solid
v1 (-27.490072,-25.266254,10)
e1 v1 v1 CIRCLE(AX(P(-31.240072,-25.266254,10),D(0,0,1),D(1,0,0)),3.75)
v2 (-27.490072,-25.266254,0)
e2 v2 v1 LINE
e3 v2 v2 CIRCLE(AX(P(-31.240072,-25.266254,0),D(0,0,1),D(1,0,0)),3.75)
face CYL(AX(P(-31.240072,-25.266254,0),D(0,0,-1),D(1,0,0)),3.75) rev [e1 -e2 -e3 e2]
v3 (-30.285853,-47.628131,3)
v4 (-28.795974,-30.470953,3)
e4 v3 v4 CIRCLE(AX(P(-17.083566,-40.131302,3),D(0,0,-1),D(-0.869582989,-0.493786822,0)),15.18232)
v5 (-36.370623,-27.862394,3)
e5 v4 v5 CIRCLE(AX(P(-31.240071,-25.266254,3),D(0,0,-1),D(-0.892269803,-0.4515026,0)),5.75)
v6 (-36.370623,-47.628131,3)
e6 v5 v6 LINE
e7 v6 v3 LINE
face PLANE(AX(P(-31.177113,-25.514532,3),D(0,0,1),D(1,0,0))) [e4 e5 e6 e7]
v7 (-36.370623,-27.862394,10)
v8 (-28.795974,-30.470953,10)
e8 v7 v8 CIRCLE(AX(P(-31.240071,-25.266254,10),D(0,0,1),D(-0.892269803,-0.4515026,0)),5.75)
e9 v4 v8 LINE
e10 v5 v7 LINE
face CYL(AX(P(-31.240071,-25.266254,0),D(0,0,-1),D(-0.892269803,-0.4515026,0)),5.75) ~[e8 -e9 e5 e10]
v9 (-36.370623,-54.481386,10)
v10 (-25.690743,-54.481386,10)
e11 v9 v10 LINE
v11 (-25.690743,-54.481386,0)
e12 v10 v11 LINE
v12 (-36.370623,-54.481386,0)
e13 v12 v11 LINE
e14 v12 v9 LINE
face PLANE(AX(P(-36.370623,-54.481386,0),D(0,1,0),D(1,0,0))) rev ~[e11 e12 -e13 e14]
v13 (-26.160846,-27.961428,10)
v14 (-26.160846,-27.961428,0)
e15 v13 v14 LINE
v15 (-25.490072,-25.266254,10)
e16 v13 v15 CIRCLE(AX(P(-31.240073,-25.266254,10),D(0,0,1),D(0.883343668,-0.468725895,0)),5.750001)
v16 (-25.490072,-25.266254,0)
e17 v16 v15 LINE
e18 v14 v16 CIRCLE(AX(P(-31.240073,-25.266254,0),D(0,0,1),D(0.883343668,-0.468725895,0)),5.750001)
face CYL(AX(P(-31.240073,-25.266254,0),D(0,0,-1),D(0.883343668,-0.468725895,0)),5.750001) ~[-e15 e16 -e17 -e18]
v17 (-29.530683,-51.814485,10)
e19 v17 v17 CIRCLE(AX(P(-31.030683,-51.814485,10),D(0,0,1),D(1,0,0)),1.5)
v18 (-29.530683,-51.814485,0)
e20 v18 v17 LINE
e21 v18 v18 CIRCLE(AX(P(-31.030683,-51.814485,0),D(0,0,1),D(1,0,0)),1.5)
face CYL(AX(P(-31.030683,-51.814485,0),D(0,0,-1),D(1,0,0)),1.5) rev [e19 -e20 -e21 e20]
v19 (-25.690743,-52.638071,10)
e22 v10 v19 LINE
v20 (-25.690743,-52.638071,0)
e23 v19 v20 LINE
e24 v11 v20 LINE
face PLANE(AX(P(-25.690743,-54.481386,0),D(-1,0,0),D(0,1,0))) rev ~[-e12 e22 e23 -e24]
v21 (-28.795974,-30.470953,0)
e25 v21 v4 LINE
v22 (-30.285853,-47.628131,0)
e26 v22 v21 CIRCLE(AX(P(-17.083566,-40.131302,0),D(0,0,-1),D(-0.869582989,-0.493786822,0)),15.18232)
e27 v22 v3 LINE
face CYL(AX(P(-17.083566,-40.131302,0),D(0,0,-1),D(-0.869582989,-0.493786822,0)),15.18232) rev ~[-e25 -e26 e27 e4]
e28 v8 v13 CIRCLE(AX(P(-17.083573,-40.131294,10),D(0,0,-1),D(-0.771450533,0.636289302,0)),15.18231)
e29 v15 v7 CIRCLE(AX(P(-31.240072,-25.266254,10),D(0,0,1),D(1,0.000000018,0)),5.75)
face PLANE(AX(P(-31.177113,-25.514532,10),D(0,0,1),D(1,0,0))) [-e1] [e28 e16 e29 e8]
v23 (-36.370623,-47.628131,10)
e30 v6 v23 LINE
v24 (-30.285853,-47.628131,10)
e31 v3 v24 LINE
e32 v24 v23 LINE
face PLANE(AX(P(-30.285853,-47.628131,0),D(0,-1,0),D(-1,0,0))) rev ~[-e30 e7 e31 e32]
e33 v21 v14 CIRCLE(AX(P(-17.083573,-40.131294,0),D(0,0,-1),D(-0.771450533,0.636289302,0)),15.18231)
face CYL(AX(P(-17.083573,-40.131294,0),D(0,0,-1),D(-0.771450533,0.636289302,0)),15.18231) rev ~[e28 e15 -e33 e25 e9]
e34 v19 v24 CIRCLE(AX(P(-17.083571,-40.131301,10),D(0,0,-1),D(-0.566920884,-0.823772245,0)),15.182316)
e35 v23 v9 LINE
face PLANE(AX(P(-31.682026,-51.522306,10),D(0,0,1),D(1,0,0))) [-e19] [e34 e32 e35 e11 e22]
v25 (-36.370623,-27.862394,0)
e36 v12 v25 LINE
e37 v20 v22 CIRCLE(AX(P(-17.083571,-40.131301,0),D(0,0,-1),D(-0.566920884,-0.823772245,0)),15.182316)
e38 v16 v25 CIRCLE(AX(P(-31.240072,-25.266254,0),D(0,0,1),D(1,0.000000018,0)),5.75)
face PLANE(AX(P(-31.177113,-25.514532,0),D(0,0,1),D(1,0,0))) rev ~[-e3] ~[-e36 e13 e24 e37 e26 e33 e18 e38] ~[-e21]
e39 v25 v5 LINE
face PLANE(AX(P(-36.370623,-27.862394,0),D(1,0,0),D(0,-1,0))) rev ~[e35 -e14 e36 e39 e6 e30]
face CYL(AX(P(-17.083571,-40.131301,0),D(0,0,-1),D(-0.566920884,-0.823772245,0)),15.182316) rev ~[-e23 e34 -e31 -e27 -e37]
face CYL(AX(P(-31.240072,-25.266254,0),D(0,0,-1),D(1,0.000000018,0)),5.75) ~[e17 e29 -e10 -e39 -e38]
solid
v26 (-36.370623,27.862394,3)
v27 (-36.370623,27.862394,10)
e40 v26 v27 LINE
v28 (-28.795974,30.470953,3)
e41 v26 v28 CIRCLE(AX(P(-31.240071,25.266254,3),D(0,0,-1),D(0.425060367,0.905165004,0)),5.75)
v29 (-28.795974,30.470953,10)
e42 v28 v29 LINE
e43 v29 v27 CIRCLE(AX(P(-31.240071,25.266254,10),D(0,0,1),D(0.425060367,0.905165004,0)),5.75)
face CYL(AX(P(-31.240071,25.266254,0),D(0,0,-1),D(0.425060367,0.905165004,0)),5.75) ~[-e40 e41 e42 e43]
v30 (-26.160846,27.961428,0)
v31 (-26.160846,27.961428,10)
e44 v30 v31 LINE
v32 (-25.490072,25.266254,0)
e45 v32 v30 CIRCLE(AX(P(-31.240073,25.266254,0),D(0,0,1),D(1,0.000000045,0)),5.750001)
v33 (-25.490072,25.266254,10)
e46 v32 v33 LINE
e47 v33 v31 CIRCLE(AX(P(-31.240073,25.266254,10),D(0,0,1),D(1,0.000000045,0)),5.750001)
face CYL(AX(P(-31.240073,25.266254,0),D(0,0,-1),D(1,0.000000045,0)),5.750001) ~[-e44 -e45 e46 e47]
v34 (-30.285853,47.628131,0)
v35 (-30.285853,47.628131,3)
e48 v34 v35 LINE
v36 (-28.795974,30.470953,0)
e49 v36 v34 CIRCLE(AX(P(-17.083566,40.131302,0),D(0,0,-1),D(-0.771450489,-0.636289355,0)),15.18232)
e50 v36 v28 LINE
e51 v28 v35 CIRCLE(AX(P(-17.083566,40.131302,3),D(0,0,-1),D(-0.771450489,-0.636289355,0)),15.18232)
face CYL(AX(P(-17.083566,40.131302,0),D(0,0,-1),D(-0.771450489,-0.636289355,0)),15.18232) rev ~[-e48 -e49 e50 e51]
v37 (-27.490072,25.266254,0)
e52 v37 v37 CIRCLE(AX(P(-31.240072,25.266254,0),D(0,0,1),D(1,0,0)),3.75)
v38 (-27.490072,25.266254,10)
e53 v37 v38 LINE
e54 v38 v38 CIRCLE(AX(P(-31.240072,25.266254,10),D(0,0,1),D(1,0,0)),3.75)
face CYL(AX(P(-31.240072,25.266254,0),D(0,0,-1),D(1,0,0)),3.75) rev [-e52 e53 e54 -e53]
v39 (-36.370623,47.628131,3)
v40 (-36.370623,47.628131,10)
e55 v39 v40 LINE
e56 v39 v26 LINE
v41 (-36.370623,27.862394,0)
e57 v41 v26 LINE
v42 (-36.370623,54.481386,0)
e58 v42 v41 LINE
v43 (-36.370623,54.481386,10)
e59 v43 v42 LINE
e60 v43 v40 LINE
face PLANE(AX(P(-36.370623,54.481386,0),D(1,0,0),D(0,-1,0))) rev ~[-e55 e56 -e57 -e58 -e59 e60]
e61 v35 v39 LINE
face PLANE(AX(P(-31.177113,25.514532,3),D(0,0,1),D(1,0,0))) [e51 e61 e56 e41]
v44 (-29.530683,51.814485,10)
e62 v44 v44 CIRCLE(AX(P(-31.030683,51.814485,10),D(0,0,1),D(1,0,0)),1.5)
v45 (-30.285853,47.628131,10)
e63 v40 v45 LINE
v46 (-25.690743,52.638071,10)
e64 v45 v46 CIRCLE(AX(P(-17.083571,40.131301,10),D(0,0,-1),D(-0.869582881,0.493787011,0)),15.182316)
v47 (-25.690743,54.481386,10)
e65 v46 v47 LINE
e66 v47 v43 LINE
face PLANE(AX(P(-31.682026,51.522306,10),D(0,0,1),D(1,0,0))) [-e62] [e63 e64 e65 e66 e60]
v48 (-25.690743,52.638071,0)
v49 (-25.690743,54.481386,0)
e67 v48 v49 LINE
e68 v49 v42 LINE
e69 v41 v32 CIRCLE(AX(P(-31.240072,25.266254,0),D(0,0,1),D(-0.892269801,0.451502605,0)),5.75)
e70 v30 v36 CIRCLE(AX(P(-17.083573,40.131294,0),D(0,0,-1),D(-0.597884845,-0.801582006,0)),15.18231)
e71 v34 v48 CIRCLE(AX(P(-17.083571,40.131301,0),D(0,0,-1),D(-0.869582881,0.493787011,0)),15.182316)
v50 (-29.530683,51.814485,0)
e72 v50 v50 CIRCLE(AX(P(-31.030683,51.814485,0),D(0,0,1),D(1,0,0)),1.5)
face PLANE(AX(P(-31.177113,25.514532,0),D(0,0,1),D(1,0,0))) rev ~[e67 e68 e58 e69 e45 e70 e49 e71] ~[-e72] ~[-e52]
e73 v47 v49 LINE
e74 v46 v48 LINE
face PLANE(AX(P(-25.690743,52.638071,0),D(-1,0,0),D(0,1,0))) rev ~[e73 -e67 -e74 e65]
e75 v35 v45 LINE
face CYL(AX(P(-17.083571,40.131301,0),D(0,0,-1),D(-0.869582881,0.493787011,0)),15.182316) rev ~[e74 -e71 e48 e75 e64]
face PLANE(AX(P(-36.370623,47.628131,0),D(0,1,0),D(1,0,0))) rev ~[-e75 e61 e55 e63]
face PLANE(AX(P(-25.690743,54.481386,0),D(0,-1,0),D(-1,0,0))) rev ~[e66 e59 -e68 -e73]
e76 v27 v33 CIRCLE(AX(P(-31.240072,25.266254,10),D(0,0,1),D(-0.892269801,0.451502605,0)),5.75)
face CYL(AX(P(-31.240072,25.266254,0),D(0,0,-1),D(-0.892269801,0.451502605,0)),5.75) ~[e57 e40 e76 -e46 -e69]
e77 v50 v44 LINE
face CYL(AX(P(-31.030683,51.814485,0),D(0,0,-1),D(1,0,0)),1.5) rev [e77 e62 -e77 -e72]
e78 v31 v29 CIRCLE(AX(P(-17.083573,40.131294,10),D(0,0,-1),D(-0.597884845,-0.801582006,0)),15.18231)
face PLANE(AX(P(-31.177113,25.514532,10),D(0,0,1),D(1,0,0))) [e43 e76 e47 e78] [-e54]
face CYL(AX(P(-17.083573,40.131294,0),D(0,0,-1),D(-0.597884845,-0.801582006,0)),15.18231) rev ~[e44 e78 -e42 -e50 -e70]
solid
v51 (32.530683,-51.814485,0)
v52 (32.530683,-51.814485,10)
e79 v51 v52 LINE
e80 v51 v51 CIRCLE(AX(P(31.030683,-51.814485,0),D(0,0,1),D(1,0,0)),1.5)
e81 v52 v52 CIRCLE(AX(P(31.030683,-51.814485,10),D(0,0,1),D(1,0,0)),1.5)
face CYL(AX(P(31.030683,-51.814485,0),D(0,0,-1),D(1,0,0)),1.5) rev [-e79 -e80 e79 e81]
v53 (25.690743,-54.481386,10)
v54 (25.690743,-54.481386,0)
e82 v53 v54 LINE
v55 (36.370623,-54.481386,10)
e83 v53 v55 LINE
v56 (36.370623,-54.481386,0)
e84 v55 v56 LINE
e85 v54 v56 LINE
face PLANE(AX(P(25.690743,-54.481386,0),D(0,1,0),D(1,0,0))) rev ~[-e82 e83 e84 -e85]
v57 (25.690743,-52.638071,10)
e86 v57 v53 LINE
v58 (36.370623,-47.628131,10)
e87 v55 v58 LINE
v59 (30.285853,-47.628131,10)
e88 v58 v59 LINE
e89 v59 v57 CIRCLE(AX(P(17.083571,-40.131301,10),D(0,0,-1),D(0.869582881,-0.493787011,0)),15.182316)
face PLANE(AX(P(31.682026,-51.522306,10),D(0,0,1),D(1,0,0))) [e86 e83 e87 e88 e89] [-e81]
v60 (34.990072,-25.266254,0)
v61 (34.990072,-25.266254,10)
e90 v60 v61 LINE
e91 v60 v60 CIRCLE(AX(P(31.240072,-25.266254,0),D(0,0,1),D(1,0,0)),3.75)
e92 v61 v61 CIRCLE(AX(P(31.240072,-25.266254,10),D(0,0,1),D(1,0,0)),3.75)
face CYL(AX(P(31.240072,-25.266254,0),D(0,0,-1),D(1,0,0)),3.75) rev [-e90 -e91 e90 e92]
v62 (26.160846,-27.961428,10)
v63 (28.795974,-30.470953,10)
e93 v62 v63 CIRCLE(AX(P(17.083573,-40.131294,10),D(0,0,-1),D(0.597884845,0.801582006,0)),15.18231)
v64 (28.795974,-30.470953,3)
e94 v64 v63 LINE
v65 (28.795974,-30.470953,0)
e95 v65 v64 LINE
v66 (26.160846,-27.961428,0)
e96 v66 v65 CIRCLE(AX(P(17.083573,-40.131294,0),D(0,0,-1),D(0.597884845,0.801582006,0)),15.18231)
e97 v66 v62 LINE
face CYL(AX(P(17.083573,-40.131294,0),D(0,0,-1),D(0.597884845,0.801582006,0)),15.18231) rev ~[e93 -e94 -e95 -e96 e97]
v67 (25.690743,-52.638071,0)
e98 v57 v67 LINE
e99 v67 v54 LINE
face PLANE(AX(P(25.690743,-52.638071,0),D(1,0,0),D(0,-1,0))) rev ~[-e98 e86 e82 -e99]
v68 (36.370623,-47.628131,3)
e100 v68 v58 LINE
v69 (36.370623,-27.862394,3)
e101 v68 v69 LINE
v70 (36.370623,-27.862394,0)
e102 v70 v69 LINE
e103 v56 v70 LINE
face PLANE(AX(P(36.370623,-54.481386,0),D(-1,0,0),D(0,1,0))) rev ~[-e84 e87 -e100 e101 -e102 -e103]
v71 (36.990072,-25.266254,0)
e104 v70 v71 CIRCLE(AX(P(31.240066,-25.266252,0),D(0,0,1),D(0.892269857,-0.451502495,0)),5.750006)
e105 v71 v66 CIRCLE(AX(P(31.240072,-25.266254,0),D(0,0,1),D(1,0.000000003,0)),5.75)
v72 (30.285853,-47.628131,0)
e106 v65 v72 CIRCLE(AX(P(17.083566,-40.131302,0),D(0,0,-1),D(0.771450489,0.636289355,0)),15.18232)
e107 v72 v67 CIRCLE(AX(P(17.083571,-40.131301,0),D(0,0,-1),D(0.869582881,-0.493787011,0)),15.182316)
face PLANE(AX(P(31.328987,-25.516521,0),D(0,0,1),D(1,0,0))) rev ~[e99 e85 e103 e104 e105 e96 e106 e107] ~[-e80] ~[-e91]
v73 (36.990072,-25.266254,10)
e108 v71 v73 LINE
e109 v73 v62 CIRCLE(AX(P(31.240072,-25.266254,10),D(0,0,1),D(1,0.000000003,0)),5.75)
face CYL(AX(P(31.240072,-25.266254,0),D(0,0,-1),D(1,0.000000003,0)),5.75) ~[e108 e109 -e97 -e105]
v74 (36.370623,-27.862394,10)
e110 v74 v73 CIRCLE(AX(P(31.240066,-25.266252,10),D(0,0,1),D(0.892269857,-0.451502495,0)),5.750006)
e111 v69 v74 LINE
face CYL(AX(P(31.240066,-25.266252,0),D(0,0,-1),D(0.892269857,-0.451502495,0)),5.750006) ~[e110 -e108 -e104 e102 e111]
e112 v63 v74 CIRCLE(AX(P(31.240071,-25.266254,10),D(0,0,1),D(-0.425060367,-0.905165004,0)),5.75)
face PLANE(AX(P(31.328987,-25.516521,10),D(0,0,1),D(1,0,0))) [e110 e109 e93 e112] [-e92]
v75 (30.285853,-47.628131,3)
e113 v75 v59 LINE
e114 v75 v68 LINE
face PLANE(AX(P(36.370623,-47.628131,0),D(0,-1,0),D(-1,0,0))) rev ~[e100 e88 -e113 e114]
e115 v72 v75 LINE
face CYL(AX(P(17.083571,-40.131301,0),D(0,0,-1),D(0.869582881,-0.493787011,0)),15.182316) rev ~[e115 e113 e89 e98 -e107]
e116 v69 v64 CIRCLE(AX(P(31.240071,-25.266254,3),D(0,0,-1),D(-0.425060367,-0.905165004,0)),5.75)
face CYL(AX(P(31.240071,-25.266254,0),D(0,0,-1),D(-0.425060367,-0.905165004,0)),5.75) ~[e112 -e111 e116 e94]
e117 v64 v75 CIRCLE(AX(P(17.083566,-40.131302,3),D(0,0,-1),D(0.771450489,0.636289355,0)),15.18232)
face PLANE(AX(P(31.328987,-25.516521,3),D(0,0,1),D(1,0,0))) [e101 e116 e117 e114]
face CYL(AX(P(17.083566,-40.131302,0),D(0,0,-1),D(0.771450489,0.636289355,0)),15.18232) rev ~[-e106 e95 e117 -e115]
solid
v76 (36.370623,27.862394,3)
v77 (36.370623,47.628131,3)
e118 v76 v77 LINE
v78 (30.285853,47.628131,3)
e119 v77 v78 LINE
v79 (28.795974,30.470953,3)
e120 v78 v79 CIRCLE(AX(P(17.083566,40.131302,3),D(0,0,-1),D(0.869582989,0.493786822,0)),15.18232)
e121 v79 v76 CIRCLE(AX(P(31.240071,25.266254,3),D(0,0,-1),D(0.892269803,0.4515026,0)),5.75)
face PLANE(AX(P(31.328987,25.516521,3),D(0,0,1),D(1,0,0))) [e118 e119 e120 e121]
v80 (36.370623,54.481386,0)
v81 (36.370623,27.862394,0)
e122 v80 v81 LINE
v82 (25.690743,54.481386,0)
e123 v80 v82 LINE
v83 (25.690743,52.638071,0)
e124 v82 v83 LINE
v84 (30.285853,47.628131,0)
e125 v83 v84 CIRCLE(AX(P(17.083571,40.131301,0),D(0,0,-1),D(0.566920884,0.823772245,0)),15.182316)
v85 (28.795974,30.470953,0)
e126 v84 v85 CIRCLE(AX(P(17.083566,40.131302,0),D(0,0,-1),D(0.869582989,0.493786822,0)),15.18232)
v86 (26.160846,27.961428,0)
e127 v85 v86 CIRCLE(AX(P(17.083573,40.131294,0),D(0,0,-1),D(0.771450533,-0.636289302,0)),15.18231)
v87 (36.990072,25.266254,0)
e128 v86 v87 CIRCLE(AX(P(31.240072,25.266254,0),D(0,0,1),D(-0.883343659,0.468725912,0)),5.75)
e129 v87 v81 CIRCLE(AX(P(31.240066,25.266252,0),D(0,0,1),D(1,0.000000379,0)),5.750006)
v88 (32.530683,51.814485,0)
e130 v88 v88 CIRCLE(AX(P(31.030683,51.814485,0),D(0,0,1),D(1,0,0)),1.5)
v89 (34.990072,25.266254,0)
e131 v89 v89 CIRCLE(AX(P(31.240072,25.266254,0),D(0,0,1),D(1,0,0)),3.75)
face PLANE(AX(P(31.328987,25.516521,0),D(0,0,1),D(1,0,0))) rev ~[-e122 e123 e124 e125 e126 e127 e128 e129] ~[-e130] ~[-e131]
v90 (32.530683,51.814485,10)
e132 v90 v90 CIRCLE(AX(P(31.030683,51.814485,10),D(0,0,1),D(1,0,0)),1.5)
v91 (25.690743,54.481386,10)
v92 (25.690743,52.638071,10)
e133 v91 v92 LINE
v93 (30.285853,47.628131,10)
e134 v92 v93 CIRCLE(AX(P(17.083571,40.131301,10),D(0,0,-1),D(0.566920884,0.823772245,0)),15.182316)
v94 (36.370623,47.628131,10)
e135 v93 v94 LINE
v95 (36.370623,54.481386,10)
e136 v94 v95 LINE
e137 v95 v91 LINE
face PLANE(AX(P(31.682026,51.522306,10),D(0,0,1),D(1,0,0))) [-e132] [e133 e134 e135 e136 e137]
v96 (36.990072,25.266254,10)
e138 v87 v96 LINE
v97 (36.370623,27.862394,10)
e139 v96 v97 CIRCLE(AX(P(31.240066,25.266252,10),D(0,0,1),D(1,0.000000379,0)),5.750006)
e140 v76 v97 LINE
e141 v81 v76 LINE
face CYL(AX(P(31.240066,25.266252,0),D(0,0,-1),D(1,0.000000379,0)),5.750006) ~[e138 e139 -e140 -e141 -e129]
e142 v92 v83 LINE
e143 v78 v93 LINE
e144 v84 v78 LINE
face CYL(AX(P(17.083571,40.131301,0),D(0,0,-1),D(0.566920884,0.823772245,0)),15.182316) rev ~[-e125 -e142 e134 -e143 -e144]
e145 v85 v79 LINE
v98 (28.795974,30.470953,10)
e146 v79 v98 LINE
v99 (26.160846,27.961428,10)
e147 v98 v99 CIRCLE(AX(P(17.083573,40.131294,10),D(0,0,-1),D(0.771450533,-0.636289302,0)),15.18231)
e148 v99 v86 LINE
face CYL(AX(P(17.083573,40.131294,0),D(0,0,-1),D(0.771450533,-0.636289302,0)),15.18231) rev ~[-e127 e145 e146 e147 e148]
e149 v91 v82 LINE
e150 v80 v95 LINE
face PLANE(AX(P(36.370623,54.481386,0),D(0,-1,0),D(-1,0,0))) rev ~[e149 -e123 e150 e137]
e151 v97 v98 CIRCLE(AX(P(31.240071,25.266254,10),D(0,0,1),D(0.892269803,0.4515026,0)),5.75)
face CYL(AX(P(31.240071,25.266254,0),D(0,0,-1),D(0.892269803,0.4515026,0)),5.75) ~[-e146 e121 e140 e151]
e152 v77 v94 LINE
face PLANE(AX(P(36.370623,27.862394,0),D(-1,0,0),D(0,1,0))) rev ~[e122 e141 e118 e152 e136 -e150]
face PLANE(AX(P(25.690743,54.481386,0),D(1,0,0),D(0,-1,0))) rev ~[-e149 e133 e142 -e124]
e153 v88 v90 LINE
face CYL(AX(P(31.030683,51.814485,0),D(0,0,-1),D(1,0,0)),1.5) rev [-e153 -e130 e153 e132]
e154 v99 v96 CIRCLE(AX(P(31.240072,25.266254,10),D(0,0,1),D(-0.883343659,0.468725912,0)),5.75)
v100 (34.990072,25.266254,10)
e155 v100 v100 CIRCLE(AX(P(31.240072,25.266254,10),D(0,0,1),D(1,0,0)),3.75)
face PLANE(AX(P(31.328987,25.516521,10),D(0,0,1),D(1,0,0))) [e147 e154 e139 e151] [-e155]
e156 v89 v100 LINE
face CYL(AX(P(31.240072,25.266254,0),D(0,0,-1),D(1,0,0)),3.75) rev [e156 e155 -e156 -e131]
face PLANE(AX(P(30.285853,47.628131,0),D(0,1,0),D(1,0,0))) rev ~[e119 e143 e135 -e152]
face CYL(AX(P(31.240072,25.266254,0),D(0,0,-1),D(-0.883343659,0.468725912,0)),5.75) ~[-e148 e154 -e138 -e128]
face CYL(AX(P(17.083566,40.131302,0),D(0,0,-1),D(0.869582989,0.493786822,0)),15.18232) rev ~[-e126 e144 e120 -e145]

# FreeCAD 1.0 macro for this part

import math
import FreeCAD as App
import Part
import Sketcher
Q = App.Units.Quantity

doc = App.newDocument("Part")
body = doc.addObject("PartDesign::Body", "Body")
body.AllowCompound = True

# Sketch on XY plane
sketch1 = doc.addObject("Sketcher::SketchObject", "Sketch")
body.addObject(sketch1)
sketch1.AttachmentSupport = (doc.XY_Plane, [""])
sketch1.MapMode = "FlatFace"
sketch1.addGeometry([
    Part.ArcOfCircle(Part.Circle(App.Vector(-31.2, 25.3, 0), App.Vector(0, 0, 1), 5.7), math.radians(153), math.radians(360)),  # 0
    Part.ArcOfCircle(Part.Circle(App.Vector(-31.2, 25.3, 0), App.Vector(0, 0, 1), 5.8), math.radians(0), math.radians(28)),  # 1
    Part.ArcOfCircle(Part.Circle(App.Vector(-17.1, 40.1, 0), App.Vector(0, 0, 1), 15.2), math.radians(-140.48), math.radians(-126.72)),  # 2
    Part.ArcOfCircle(Part.Circle(App.Vector(-17.1, 40.1, 0), App.Vector(0, 0, 1), 15.2), math.radians(150), math.radians(220)),  # 3
    Part.ArcOfCircle(Part.Circle(App.Vector(-17.1, 40.1, 0), App.Vector(0, 0, 1), 15.2), math.radians(125), math.radians(150)),  # 4
    Part.LineSegment(App.Vector(-25.7, 52.6, 0), App.Vector(-25.7, 54.5, 0)),  # 5
    Part.LineSegment(App.Vector(-25.7, 54.5, 0), App.Vector(-36.4, 54.5, 0)),  # 6
    Part.LineSegment(App.Vector(-36.4, 54.5, 0), App.Vector(-36.4, 27.9, 0)),  # 7
    Part.Circle(App.Vector(-31.2, 25.3, 0), App.Vector(0, 0, 1), 3.8),  # 8
    Part.Circle(App.Vector(-31, 51.8, 0), App.Vector(0, 0, 1), 1.5),  # 9
    Part.ArcOfCircle(Part.Circle(App.Vector(31.2, 25.3, 0), App.Vector(0, 0, 1), 5.7), math.radians(152), math.radians(360)),  # 10
    Part.ArcOfCircle(Part.Circle(App.Vector(31.2, 25.3, 0), App.Vector(0, 0, 1), 5.8), math.radians(0), math.radians(27)),  # 11
    Part.LineSegment(App.Vector(36.4, 27.9, 0), App.Vector(36.4, 54.5, 0)),  # 12
    Part.LineSegment(App.Vector(36.4, 54.5, 0), App.Vector(25.7, 54.5, 0)),  # 13
    Part.LineSegment(App.Vector(25.7, 54.5, 0), App.Vector(25.7, 52.6, 0)),  # 14
    Part.ArcOfCircle(Part.Circle(App.Vector(17.1, 40.1, 0), App.Vector(0, 0, 1), 15.2), math.radians(30), math.radians(55)),  # 15
    Part.ArcOfCircle(Part.Circle(App.Vector(17.1, 40.1, 0), App.Vector(0, 0, 1), 15.2), math.radians(-40), math.radians(30)),  # 16
    Part.ArcOfCircle(Part.Circle(App.Vector(17.1, 40.1, 0), App.Vector(0, 0, 1), 15.2), math.radians(-53.28), math.radians(-39.52)),  # 17
    Part.Circle(App.Vector(31.2, 25.3, 0), App.Vector(0, 0, 1), 3.8),  # 18
    Part.Circle(App.Vector(31, 51.8, 0), App.Vector(0, 0, 1), 1.5),  # 19
    Part.ArcOfCircle(Part.Circle(App.Vector(31.2, -25.3, 0), App.Vector(0, 0, 1), 5.8), math.radians(-27), math.radians(0)),  # 20
    Part.ArcOfCircle(Part.Circle(App.Vector(31.2, -25.3, 0), App.Vector(0, 0, 1), 5.7), math.radians(0), math.radians(208)),  # 21
    Part.ArcOfCircle(Part.Circle(App.Vector(17.1, -40.1, 0), App.Vector(0, 0, 1), 15.2), math.radians(39.52), math.radians(53.28)),  # 22
    Part.ArcOfCircle(Part.Circle(App.Vector(17.1, -40.1, 0), App.Vector(0, 0, 1), 15.2), math.radians(-30), math.radians(40)),  # 23
    Part.ArcOfCircle(Part.Circle(App.Vector(17.1, -40.1, 0), App.Vector(0, 0, 1), 15.2), math.radians(-55), math.radians(-30)),  # 24
    Part.LineSegment(App.Vector(25.7, -52.6, 0), App.Vector(25.7, -54.5, 0)),  # 25
    Part.LineSegment(App.Vector(25.7, -54.5, 0), App.Vector(36.4, -54.5, 0)),  # 26
    Part.LineSegment(App.Vector(36.4, -54.5, 0), App.Vector(36.4, -27.9, 0)),  # 27
    Part.Circle(App.Vector(31, -51.8, 0), App.Vector(0, 0, 1), 1.5),  # 28
    Part.Circle(App.Vector(31.2, -25.3, 0), App.Vector(0, 0, 1), 3.8),  # 29
    Part.ArcOfCircle(Part.Circle(App.Vector(-31.2, -25.3, 0), App.Vector(0, 0, 1), 5.8), math.radians(-28), math.radians(0)),  # 30
    Part.ArcOfCircle(Part.Circle(App.Vector(-31.2, -25.3, 0), App.Vector(0, 0, 1), 5.7), math.radians(0), math.radians(207)),  # 31
    Part.LineSegment(App.Vector(-36.4, -27.9, 0), App.Vector(-36.4, -54.5, 0)),  # 32
    Part.LineSegment(App.Vector(-36.4, -54.5, 0), App.Vector(-25.7, -54.5, 0)),  # 33
    Part.LineSegment(App.Vector(-25.7, -54.5, 0), App.Vector(-25.7, -52.6, 0)),  # 34
    Part.ArcOfCircle(Part.Circle(App.Vector(-17.1, -40.1, 0), App.Vector(0, 0, 1), 15.2), math.radians(-150), math.radians(-125)),  # 35
    Part.ArcOfCircle(Part.Circle(App.Vector(-17.1, -40.1, 0), App.Vector(0, 0, 1), 15.2), math.radians(140), math.radians(210)),  # 36
    Part.ArcOfCircle(Part.Circle(App.Vector(-17.1, -40.1, 0), App.Vector(0, 0, 1), 15.2), math.radians(126.72), math.radians(140.48)),  # 37
    Part.Circle(App.Vector(-31, -51.8, 0), App.Vector(0, 0, 1), 1.5),  # 38
    Part.Circle(App.Vector(-31.2, -25.3, 0), App.Vector(0, 0, 1), 3.8),  # 39
], False)
sketch1.addConstraint([
    Sketcher.Constraint("Tangent", 0, 2, 1, 1),
    Sketcher.Constraint("Coincident", 1, 2, 2, 2),
    Sketcher.Constraint("Tangent", 2, 1, 3, 2),
    Sketcher.Constraint("Tangent", 3, 1, 4, 2),
    Sketcher.Constraint("Coincident", 4, 1, 5, 1),
    Sketcher.Constraint("Coincident", 5, 2, 6, 1),
    Sketcher.Constraint("Coincident", 6, 2, 7, 1),
    Sketcher.Constraint("Coincident", 7, 2, 0, 1),
    Sketcher.Constraint("Tangent", 10, 2, 11, 1),
    Sketcher.Constraint("Coincident", 11, 2, 12, 1),
    Sketcher.Constraint("Coincident", 12, 2, 13, 1),
    Sketcher.Constraint("Coincident", 13, 2, 14, 1),
    Sketcher.Constraint("Coincident", 14, 2, 15, 2),
    Sketcher.Constraint("Tangent", 15, 1, 16, 2),
    Sketcher.Constraint("Tangent", 16, 1, 17, 2),
    Sketcher.Constraint("Coincident", 17, 1, 10, 1),
    Sketcher.Constraint("Tangent", 20, 2, 21, 1),
    Sketcher.Constraint("Coincident", 21, 2, 22, 2),
    Sketcher.Constraint("Tangent", 22, 1, 23, 2),
    Sketcher.Constraint("Tangent", 23, 1, 24, 2),
    Sketcher.Constraint("Coincident", 24, 1, 25, 1),
    Sketcher.Constraint("Coincident", 25, 2, 26, 1),
    Sketcher.Constraint("Coincident", 26, 2, 27, 1),
    Sketcher.Constraint("Coincident", 27, 2, 20, 1),
    Sketcher.Constraint("Tangent", 30, 2, 31, 1),
    Sketcher.Constraint("Coincident", 31, 2, 32, 1),
    Sketcher.Constraint("Coincident", 32, 2, 33, 1),
    Sketcher.Constraint("Coincident", 33, 2, 34, 1),
    Sketcher.Constraint("Coincident", 34, 2, 35, 2),
    Sketcher.Constraint("Tangent", 35, 1, 36, 2),
    Sketcher.Constraint("Tangent", 36, 1, 37, 2),
    Sketcher.Constraint("Coincident", 37, 1, 30, 1),
    Sketcher.Constraint("Vertical", 5),
    Sketcher.Constraint("Horizontal", 6),
    Sketcher.Constraint("Vertical", 7),
    Sketcher.Constraint("Vertical", 12),
    Sketcher.Constraint("Horizontal", 13),
    Sketcher.Constraint("Vertical", 14),
    Sketcher.Constraint("Vertical", 25),
    Sketcher.Constraint("Horizontal", 26),
    Sketcher.Constraint("Vertical", 27),
    Sketcher.Constraint("Vertical", 32),
    Sketcher.Constraint("Horizontal", 33),
    Sketcher.Constraint("Vertical", 34),
    Sketcher.Constraint("Coincident", 4, 3, 2, 3),
    Sketcher.Constraint("Coincident", 8, 3, 0, 3),
    Sketcher.Constraint("Coincident", 17, 3, 15, 3),
    Sketcher.Constraint("Coincident", 18, 3, 10, 3),
    Sketcher.Constraint("Coincident", 24, 3, 22, 3),
    Sketcher.Constraint("Coincident", 29, 3, 20, 3),
    Sketcher.Constraint("Coincident", 37, 3, 35, 3),
    Sketcher.Constraint("Coincident", 39, 3, 30, 3),
    Sketcher.Constraint("Equal", 0, 1),
    Sketcher.Constraint("Equal", 1, 10),
    Sketcher.Constraint("Equal", 4, 15),
    Sketcher.Constraint("Equal", 8, 18),
    Sketcher.Constraint("Equal", 9, 19),
    Sketcher.Constraint("Equal", 11, 20),
    Sketcher.Constraint("Equal", 10, 21),
    Sketcher.Constraint("Equal", 17, 22),
    Sketcher.Constraint("Equal", 19, 28),
    Sketcher.Constraint("Equal", 18, 29),
    Sketcher.Constraint("Equal", 21, 30),
    Sketcher.Constraint("Equal", 30, 31),
    Sketcher.Constraint("Equal", 24, 35),
    Sketcher.Constraint("Equal", 28, 38),
    Sketcher.Constraint("Equal", 29, 39),
    Sketcher.Constraint("Symmetric", 0, 3, 20, 3, -1, 1),
    Sketcher.Constraint("Symmetric", 2, 3, 22, 3, -1, 1),
    Sketcher.Constraint("Symmetric", 9, 3, 28, 3, -1, 1),
    Sketcher.Constraint("Symmetric", 10, 3, 30, 3, -1, 1),
    Sketcher.Constraint("Symmetric", 15, 3, 35, 3, -1, 1),
    Sketcher.Constraint("Symmetric", 19, 3, 38, 3, -1, 1),
    Sketcher.Constraint("Symmetric", 5, 2, 25, 2, -1, 1),
    Sketcher.Constraint("Symmetric", 7, 2, 27, 2, -1, 1),
    Sketcher.Constraint("Symmetric", 12, 2, 32, 2, -1, 1),
    Sketcher.Constraint("Symmetric", 0, 3, 10, 3, -2),
    Sketcher.Constraint("Symmetric", 2, 3, 15, 3, -2),
    Sketcher.Constraint("Symmetric", 9, 3, 19, 3, -2),
    Sketcher.Constraint("Symmetric", 6, 2, 12, 2, -2),
    Sketcher.Constraint("Horizontal", 18, 3, 0, 2),
    Sketcher.Constraint("Horizontal", 0, 2, 10, 2),
    Sketcher.Constraint("Horizontal", 4, 1, 14, 2),
    Sketcher.Constraint("Horizontal", 3, 1, 15, 1),
    Sketcher.Constraint("Horizontal", 2, 1, 16, 1),
    Sketcher.Constraint("Horizontal", 39, 3, 20, 2),
    Sketcher.Constraint("Horizontal", 20, 2, 30, 2),
    Sketcher.Constraint("Horizontal", 24, 1, 34, 2),
    Sketcher.Constraint("Horizontal", 23, 1, 35, 1),
    Sketcher.Constraint("Horizontal", 22, 1, 36, 1),
    Sketcher.Constraint("Vertical", 16, 1, 22, 1),
    Sketcher.Constraint("Vertical", 15, 1, 23, 1),
    Sketcher.Constraint("Diameter", 9, Q("3 mm")),
    Sketcher.Constraint("Diameter", 8, Q("7.5 mm")),
    Sketcher.Constraint("Radius", 0, Q("5.75 mm")),
    Sketcher.Constraint("Radius", 2, Q("15.18231 mm")),
    Sketcher.Constraint("DistanceX", 6, 2, 6, 1, Q("10.67988 mm")),
    Sketcher.Constraint("DistanceY", -1, 1, 3, 3, Q("40.131302 mm")),
    Sketcher.Constraint("DistanceX", 0, 3, 2, 3, Q("14.156499 mm")),
    Sketcher.Constraint("DistanceY", 0, 3, 2, 1, Q("5.204699 mm")),
    Sketcher.Constraint("DistanceX", 8, 3, 2, 1, Q("2.444098 mm")),
    Sketcher.Constraint("DistanceY", 9, 3, 5, 2, Q("2.666901 mm")),
    Sketcher.Constraint("DistanceY", 11, 2, 17, 3, Q("12.2689 mm")),
    Sketcher.Constraint("DistanceY", 5, 1, 5, 2, Q("1.843315 mm")),
    Sketcher.Constraint("DistanceX", 0, 3, -1, 1, Q("31.240072 mm")),
    Sketcher.Constraint("DistanceY", -1, 1, 3, 1, Q("47.628131 mm")),
    Sketcher.Constraint("DistanceX", 9, 3, 4, 3, Q("13.947112 mm")),
])
pad1 = doc.addObject("PartDesign::Pad", "Pad")
body.addObject(pad1)
pad1.Profile = sketch1
pad1.Length = 3

# Sketch on XY plane
sketch2 = doc.addObject("Sketcher::SketchObject", "Sketch001")
body.addObject(sketch2)
sketch2.AttachmentSupport = (doc.XY_Plane, [""])
sketch2.MapMode = "FlatFace"
sketch2.addGeometry([
    Part.ArcOfCircle(Part.Circle(App.Vector(-31.2, 25.3, 0), App.Vector(0, 0, 1), 5.7), math.radians(153), math.radians(360)),  # 0
    Part.ArcOfCircle(Part.Circle(App.Vector(-31.2, 25.3, 0), App.Vector(0, 0, 1), 5.8), math.radians(0), math.radians(28)),  # 1
    Part.ArcOfCircle(Part.Circle(App.Vector(-17.1, 40.1, 0), App.Vector(0, 0, 1), 15.2), math.radians(-140.48), math.radians(-126.72)),  # 2
    Part.ArcOfCircle(Part.Circle(App.Vector(-31.2, 25.3, 0), App.Vector(0, 0, 1), 5.8), math.radians(65), math.radians(153)),  # 3
    Part.Circle(App.Vector(-31.2, 25.3, 0), App.Vector(0, 0, 1), 3.8),  # 4
    Part.ArcOfCircle(Part.Circle(App.Vector(31.2, 25.3, 0), App.Vector(0, 0, 1), 5.7), math.radians(152), math.radians(360)),  # 5
    Part.ArcOfCircle(Part.Circle(App.Vector(31.2, 25.3, 0), App.Vector(0, 0, 1), 5.8), math.radians(0), math.radians(27)),  # 6
    Part.ArcOfCircle(Part.Circle(App.Vector(31.2, 25.3, 0), App.Vector(0, 0, 1), 5.8), math.radians(27), math.radians(115)),  # 7
    Part.ArcOfCircle(Part.Circle(App.Vector(17.1, 40.1, 0), App.Vector(0, 0, 1), 15.2), math.radians(-53.28), math.radians(-39.52)),  # 8
    Part.Circle(App.Vector(31.2, 25.3, 0), App.Vector(0, 0, 1), 3.8),  # 9
    Part.ArcOfCircle(Part.Circle(App.Vector(31.2, -25.3, 0), App.Vector(0, 0, 1), 5.8), math.radians(-27), math.radians(0)),  # 10
    Part.ArcOfCircle(Part.Circle(App.Vector(31.2, -25.3, 0), App.Vector(0, 0, 1), 5.7), math.radians(0), math.radians(208)),  # 11
    Part.ArcOfCircle(Part.Circle(App.Vector(17.1, -40.1, 0), App.Vector(0, 0, 1), 15.2), math.radians(39.52), math.radians(53.28)),  # 12
    Part.ArcOfCircle(Part.Circle(App.Vector(31.2, -25.3, 0), App.Vector(0, 0, 1), 5.8), math.radians(-115), math.radians(-27)),  # 13
    Part.Circle(App.Vector(31.2, -25.3, 0), App.Vector(0, 0, 1), 3.8),  # 14
    Part.ArcOfCircle(Part.Circle(App.Vector(-31.2, -25.3, 0), App.Vector(0, 0, 1), 5.8), math.radians(-28), math.radians(0)),  # 15
    Part.ArcOfCircle(Part.Circle(App.Vector(-31.2, -25.3, 0), App.Vector(0, 0, 1), 5.7), math.radians(0), math.radians(207)),  # 16
    Part.ArcOfCircle(Part.Circle(App.Vector(-31.2, -25.3, 0), App.Vector(0, 0, 1), 5.8), math.radians(-153), math.radians(-65)),  # 17
    Part.ArcOfCircle(Part.Circle(App.Vector(-17.1, -40.1, 0), App.Vector(0, 0, 1), 15.2), math.radians(126.72), math.radians(140.48)),  # 18
    Part.Circle(App.Vector(-31.2, -25.3, 0), App.Vector(0, 0, 1), 3.8),  # 19
    Part.LineSegment(App.Vector(-36.4, 54.5, 0), App.Vector(-36.4, 47.6, 0)),  # 20
    Part.LineSegment(App.Vector(-36.4, 47.6, 0), App.Vector(-30.3, 47.6, 0)),  # 21
    Part.ArcOfCircle(Part.Circle(App.Vector(-17.1, 40.1, 0), App.Vector(0, 0, 1), 15.2), math.radians(125), math.radians(150)),  # 22
    Part.LineSegment(App.Vector(-25.7, 52.6, 0), App.Vector(-25.7, 54.5, 0)),  # 23
    Part.LineSegment(App.Vector(-25.7, 54.5, 0), App.Vector(-36.4, 54.5, 0)),  # 24
    Part.Circle(App.Vector(-31, 51.8, 0), App.Vector(0, 0, 1), 1.5),  # 25
    Part.LineSegment(App.Vector(30.3, 47.6, 0), App.Vector(36.4, 47.6, 0)),  # 26
    Part.LineSegment(App.Vector(36.4, 47.6, 0), App.Vector(36.4, 54.5, 0)),  # 27
    Part.LineSegment(App.Vector(36.4, 54.5, 0), App.Vector(25.7, 54.5, 0)),  # 28
    Part.LineSegment(App.Vector(25.7, 54.5, 0), App.Vector(25.7, 52.6, 0)),  # 29
    Part.ArcOfCircle(Part.Circle(App.Vector(17.1, 40.1, 0), App.Vector(0, 0, 1), 15.2), math.radians(30), math.radians(55)),  # 30
    Part.Circle(App.Vector(31, 51.8, 0), App.Vector(0, 0, 1), 1.5),  # 31
    Part.LineSegment(App.Vector(36.4, -54.5, 0), App.Vector(36.4, -47.6, 0)),  # 32
    Part.LineSegment(App.Vector(36.4, -47.6, 0), App.Vector(30.3, -47.6, 0)),  # 33
    Part.ArcOfCircle(Part.Circle(App.Vector(17.1, -40.1, 0), App.Vector(0, 0, 1), 15.2), math.radians(-55), math.radians(-30)),  # 34
    Part.LineSegment(App.Vector(25.7, -52.6, 0), App.Vector(25.7, -54.5, 0)),  # 35
    Part.LineSegment(App.Vector(25.7, -54.5, 0), App.Vector(36.4, -54.5, 0)),  # 36
    Part.Circle(App.Vector(31, -51.8, 0), App.Vector(0, 0, 1), 1.5),  # 37
    Part.LineSegment(App.Vector(-30.3, -47.6, 0), App.Vector(-36.4, -47.6, 0)),  # 38
    Part.LineSegment(App.Vector(-36.4, -47.6, 0), App.Vector(-36.4, -54.5, 0)),  # 39
    Part.LineSegment(App.Vector(-36.4, -54.5, 0), App.Vector(-25.7, -54.5, 0)),  # 40
    Part.LineSegment(App.Vector(-25.7, -54.5, 0), App.Vector(-25.7, -52.6, 0)),  # 41
    Part.ArcOfCircle(Part.Circle(App.Vector(-17.1, -40.1, 0), App.Vector(0, 0, 1), 15.2), math.radians(-150), math.radians(-125)),  # 42
    Part.Circle(App.Vector(-31, -51.8, 0), App.Vector(0, 0, 1), 1.5),  # 43
], False)
sketch2.addConstraint([
    Sketcher.Constraint("Tangent", 0, 2, 1, 1),
    Sketcher.Constraint("Coincident", 1, 2, 2, 2),
    Sketcher.Constraint("Coincident", 2, 1, 3, 1),
    Sketcher.Constraint("Tangent", 3, 2, 0, 1),
    Sketcher.Constraint("Tangent", 5, 2, 6, 1),
    Sketcher.Constraint("Tangent", 6, 2, 7, 1),
    Sketcher.Constraint("Coincident", 7, 2, 8, 2),
    Sketcher.Constraint("Coincident", 8, 1, 5, 1),
    Sketcher.Constraint("Tangent", 10, 2, 11, 1),
    Sketcher.Constraint("Coincident", 11, 2, 12, 2),
    Sketcher.Constraint("Coincident", 12, 1, 13, 1),
    Sketcher.Constraint("Tangent", 13, 2, 10, 1),
    Sketcher.Constraint("Tangent", 15, 2, 16, 1),
    Sketcher.Constraint("Tangent", 16, 2, 17, 1),
    Sketcher.Constraint("Coincident", 17, 2, 18, 2),
    Sketcher.Constraint("Coincident", 18, 1, 15, 1),
    Sketcher.Constraint("Coincident", 20, 2, 21, 1),
    Sketcher.Constraint("Coincident", 21, 2, 22, 2),
    Sketcher.Constraint("Coincident", 22, 1, 23, 1),
    Sketcher.Constraint("Coincident", 23, 2, 24, 1),
    Sketcher.Constraint("Coincident", 24, 2, 20, 1),
    Sketcher.Constraint("Coincident", 26, 2, 27, 1),
    Sketcher.Constraint("Coincident", 27, 2, 28, 1),
    Sketcher.Constraint("Coincident", 28, 2, 29, 1),
    Sketcher.Constraint("Coincident", 29, 2, 30, 2),
    Sketcher.Constraint("Coincident", 30, 1, 26, 1),
    Sketcher.Constraint("Coincident", 32, 2, 33, 1),
    Sketcher.Constraint("Coincident", 33, 2, 34, 2),
    Sketcher.Constraint("Coincident", 34, 1, 35, 1),
    Sketcher.Constraint("Coincident", 35, 2, 36, 1),
    Sketcher.Constraint("Coincident", 36, 2, 32, 1),
    Sketcher.Constraint("Coincident", 38, 2, 39, 1),
    Sketcher.Constraint("Coincident", 39, 2, 40, 1),
    Sketcher.Constraint("Coincident", 40, 2, 41, 1),
    Sketcher.Constraint("Coincident", 41, 2, 42, 2),
    Sketcher.Constraint("Coincident", 42, 1, 38, 1),
    Sketcher.Constraint("Vertical", 20),
    Sketcher.Constraint("Horizontal", 21),
    Sketcher.Constraint("Vertical", 23),
    Sketcher.Constraint("Horizontal", 24),
    Sketcher.Constraint("Horizontal", 26),
    Sketcher.Constraint("Vertical", 27),
    Sketcher.Constraint("Horizontal", 28),
    Sketcher.Constraint("Vertical", 29),
    Sketcher.Constraint("Vertical", 32),
    Sketcher.Constraint("Horizontal", 33),
    Sketcher.Constraint("Vertical", 35),
    Sketcher.Constraint("Horizontal", 36),
    Sketcher.Constraint("Horizontal", 38),
    Sketcher.Constraint("Vertical", 39),
    Sketcher.Constraint("Horizontal", 40),
    Sketcher.Constraint("Vertical", 41),
    Sketcher.Constraint("Coincident", 4, 3, 0, 3),
    Sketcher.Constraint("Coincident", 7, 3, 5, 3),
    Sketcher.Constraint("Coincident", 9, 3, 5, 3),
    Sketcher.Constraint("Coincident", 14, 3, 10, 3),
    Sketcher.Constraint("Coincident", 17, 3, 15, 3),
    Sketcher.Constraint("Coincident", 19, 3, 15, 3),
    Sketcher.Constraint("Coincident", 22, 3, 2, 3),
    Sketcher.Constraint("Coincident", 30, 3, 8, 3),
    Sketcher.Constraint("Coincident", 34, 3, 12, 3),
    Sketcher.Constraint("Coincident", 42, 3, 18, 3),
    Sketcher.Constraint("Equal", 0, 1),
    Sketcher.Constraint("Equal", 1, 3),
    Sketcher.Constraint("Equal", 3, 5),
    Sketcher.Constraint("Equal", 2, 8),
    Sketcher.Constraint("Equal", 4, 9),
    Sketcher.Constraint("Equal", 6, 10),
    Sketcher.Constraint("Equal", 7, 11),
    Sketcher.Constraint("Equal", 8, 12),
    Sketcher.Constraint("Equal", 11, 13),
    Sketcher.Constraint("Equal", 9, 14),
    Sketcher.Constraint("Equal", 13, 15),
    Sketcher.Constraint("Equal", 12, 18),
    Sketcher.Constraint("Equal", 14, 19),
    Sketcher.Constraint("Equal", 22, 30),
    Sketcher.Constraint("Equal", 25, 31),
    Sketcher.Constraint("Equal", 30, 34),
    Sketcher.Constraint("Equal", 31, 37),
    Sketcher.Constraint("Equal", 34, 42),
    Sketcher.Constraint("Equal", 37, 43),
    Sketcher.Constraint("Symmetric", 0, 3, 10, 3, -1, 1),
    Sketcher.Constraint("Symmetric", 2, 3, 12, 3, -1, 1),
    Sketcher.Constraint("Symmetric", 5, 3, 15, 3, -1, 1),
    Sketcher.Constraint("Symmetric", 8, 3, 18, 3, -1, 1),
    Sketcher.Constraint("Symmetric", 25, 3, 37, 3, -1, 1),
    Sketcher.Constraint("Symmetric", 31, 3, 43, 3, -1, 1),
    Sketcher.Constraint("Symmetric", 20, 2, 32, 2, -1, 1),
    Sketcher.Constraint("Symmetric", 23, 2, 35, 2, -1, 1),
    Sketcher.Constraint("Symmetric", 26, 2, 38, 2, -1, 1),
    Sketcher.Constraint("Symmetric", 28, 2, 40, 2, -1, 1),
    Sketcher.Constraint("Symmetric", 0, 3, 5, 3, -2),
    Sketcher.Constraint("Symmetric", 2, 3, 8, 3, -2),
    Sketcher.Constraint("Symmetric", 25, 3, 31, 3, -2),
    Sketcher.Constraint("Symmetric", 20, 2, 26, 2, -2),
    Sketcher.Constraint("Symmetric", 23, 2, 28, 2, -2),
    Sketcher.Constraint("Horizontal", 9, 3, 0, 2),
    Sketcher.Constraint("Horizontal", 0, 2, 5, 2),
    Sketcher.Constraint("Horizontal", 3, 2, 6, 2),
    Sketcher.Constraint("Horizontal", 19, 3, 10, 2),
    Sketcher.Constraint("Horizontal", 10, 2, 15, 2),
    Sketcher.Constraint("Horizontal", 13, 2, 16, 2),
    Sketcher.Constraint("Vertical", 6, 2, 13, 2),
    Sketcher.Constraint("Vertical", 16, 2, 20, 2),
    Sketcher.Constraint("Diameter", 25, Q("3 mm")),
    Sketcher.Constraint("Diameter", 4, Q("7.5 mm")),
    Sketcher.Constraint("Radius", 0, Q("5.75 mm")),
    Sketcher.Constraint("Radius", 2, Q("15.18231 mm")),
    Sketcher.Constraint("Radius", 22, Q("15.182316 mm")),
    Sketcher.Constraint("DistanceX", 21, 1, 21, 2, Q("6.08477 mm")),
    Sketcher.Constraint("DistanceX", 24, 2, 24, 1, Q("10.67988 mm")),
    Sketcher.Constraint("DistanceY", -1, 1, 22, 3, Q("40.131301 mm")),
    Sketcher.Constraint("DistanceY", 20, 2, 20, 1, Q("6.853255 mm")),
    Sketcher.Constraint("DistanceY", 23, 1, 23, 2, Q("1.843315 mm")),
    Sketcher.Constraint("DistanceX", 0, 3, -1, 1, Q("31.240072 mm")),
    Sketcher.Constraint("DistanceY", -1, 1, 6, 3, Q("25.266252 mm")),
    Sketcher.Constraint("DistanceX", 22, 3, -1, 1, Q("17.083571 mm")),
    Sketcher.Constraint("DistanceX", 25, 3, -1, 1, Q("31.030683 mm")),
    Sketcher.Constraint("DistanceY", -1, 1, 25, 3, Q("51.814485 mm")),
])
pad2 = doc.addObject("PartDesign::Pad", "Pad001")
body.addObject(pad2)
pad2.Profile = sketch2
pad2.Length = 10

doc.recompute()
